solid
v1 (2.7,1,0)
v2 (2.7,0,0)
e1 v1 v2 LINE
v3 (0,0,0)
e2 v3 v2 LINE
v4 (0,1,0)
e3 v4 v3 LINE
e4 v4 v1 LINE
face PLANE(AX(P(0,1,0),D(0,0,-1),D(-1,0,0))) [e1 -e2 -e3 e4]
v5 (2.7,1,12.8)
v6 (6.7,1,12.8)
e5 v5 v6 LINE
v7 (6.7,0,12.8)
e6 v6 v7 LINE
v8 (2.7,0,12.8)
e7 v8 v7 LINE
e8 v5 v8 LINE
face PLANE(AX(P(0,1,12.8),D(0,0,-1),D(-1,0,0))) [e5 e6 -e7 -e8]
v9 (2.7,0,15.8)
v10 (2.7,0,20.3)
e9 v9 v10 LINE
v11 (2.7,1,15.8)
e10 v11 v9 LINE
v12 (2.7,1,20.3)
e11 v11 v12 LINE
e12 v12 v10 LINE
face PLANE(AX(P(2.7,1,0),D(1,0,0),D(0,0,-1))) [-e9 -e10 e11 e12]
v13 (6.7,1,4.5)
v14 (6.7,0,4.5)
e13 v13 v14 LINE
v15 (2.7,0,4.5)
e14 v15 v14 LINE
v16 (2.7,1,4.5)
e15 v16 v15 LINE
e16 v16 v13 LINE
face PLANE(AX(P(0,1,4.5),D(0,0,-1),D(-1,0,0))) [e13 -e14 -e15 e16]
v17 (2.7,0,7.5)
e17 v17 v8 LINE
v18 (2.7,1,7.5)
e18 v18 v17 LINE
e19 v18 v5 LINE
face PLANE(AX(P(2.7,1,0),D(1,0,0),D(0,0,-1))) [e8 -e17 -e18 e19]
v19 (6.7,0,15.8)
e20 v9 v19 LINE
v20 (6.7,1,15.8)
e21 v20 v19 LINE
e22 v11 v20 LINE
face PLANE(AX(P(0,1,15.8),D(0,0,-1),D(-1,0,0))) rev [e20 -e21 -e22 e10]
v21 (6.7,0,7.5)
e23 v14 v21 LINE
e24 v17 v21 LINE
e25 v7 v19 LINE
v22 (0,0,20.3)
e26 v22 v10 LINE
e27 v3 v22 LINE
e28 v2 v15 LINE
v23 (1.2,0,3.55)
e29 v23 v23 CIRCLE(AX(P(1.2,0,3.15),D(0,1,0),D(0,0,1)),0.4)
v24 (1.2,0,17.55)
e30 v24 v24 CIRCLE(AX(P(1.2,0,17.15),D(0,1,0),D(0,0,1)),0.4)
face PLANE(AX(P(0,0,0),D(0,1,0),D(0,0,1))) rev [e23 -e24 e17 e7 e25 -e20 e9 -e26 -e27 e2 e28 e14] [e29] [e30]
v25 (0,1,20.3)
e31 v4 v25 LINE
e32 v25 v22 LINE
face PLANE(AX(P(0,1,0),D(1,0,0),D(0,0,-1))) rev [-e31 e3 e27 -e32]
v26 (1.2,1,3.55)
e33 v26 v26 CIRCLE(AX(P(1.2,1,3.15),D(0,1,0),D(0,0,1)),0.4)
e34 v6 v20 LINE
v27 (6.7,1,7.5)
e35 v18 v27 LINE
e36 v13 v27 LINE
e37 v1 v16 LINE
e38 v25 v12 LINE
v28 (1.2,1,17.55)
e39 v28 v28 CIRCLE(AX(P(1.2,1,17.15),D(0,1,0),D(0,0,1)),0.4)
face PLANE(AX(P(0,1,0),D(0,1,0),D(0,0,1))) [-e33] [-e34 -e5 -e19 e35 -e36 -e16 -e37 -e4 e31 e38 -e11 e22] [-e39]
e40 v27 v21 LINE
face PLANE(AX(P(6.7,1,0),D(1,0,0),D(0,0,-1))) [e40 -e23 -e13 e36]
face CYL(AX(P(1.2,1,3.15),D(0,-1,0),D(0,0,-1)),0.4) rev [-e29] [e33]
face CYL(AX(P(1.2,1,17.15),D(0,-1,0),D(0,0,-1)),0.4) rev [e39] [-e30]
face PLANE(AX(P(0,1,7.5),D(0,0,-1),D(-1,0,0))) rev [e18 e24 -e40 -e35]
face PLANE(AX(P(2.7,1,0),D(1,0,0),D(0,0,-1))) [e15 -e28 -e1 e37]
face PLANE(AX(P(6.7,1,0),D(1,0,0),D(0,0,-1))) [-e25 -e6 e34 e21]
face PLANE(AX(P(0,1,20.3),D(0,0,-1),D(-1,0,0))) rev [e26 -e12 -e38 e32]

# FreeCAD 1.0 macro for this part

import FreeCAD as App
import Part
import Sketcher
from FreeCAD import Vector
Q = App.Units.Quantity

doc = App.newDocument("Part")
body = doc.addObject("PartDesign::Body", "Body")

sketch1 = body.newObject("Sketcher::SketchObject", "Sketch")
sketch1.AttachmentSupport = (doc.getObject("XZ_Plane"), [""])
sketch1.MapMode = "FlatFace"
sketch1.addGeometry(Part.LineSegment(Vector(0, 0, 0), Vector(0, 20.3, 0)), False)
sketch1.addGeometry(Part.LineSegment(Vector(0, 20.3, 0), Vector(2.7, 20.3, 0)), False)
sketch1.addGeometry(Part.LineSegment(Vector(2.7, 20.3, 0), Vector(2.7, 15.8, 0)), False)
sketch1.addGeometry(Part.LineSegment(Vector(2.7, 15.8, 0), Vector(6.7, 15.8, 0)), False)
sketch1.addGeometry(Part.LineSegment(Vector(6.7, 15.8, 0), Vector(6.7, 12.8, 0)), False)
sketch1.addGeometry(Part.LineSegment(Vector(6.7, 12.8, 0), Vector(2.7, 12.8, 0)), False)
sketch1.addGeometry(Part.LineSegment(Vector(2.7, 12.8, 0), Vector(2.7, 7.5, 0)), False)
sketch1.addGeometry(Part.LineSegment(Vector(2.7, 7.5, 0), Vector(6.7, 7.5, 0)), False)
sketch1.addGeometry(Part.LineSegment(Vector(6.7, 7.5, 0), Vector(6.7, 4.5, 0)), False)
sketch1.addGeometry(Part.LineSegment(Vector(6.7, 4.5, 0), Vector(2.7, 4.5, 0)), False)
sketch1.addGeometry(Part.LineSegment(Vector(2.7, 4.5, 0), Vector(2.7, 0, 0)), False)
sketch1.addGeometry(Part.LineSegment(Vector(2.7, 0, 0), Vector(0, 0, 0)), False)
sketch1.addGeometry(Part.Circle(Vector(1.2, 17.15, 0), Vector(0, 0, 1), 0.4), False)
sketch1.addGeometry(Part.Circle(Vector(1.2, 3.15, 0), Vector(0, 0, 1), 0.4), False)
sketch1.addConstraint(Sketcher.Constraint("Coincident", 0, 2, 1, 1))
sketch1.addConstraint(Sketcher.Constraint("Coincident", 1, 2, 2, 1))
sketch1.addConstraint(Sketcher.Constraint("Coincident", 2, 2, 3, 1))
sketch1.addConstraint(Sketcher.Constraint("Coincident", 3, 2, 4, 1))
sketch1.addConstraint(Sketcher.Constraint("Coincident", 4, 2, 5, 1))
sketch1.addConstraint(Sketcher.Constraint("Coincident", 5, 2, 6, 1))
sketch1.addConstraint(Sketcher.Constraint("Coincident", 6, 2, 7, 1))
sketch1.addConstraint(Sketcher.Constraint("Coincident", 7, 2, 8, 1))
sketch1.addConstraint(Sketcher.Constraint("Coincident", 8, 2, 9, 1))
sketch1.addConstraint(Sketcher.Constraint("Coincident", 9, 2, 10, 1))
sketch1.addConstraint(Sketcher.Constraint("Coincident", 10, 2, 11, 1))
sketch1.addConstraint(Sketcher.Constraint("Coincident", 11, 2, 0, 1))
sketch1.addConstraint(Sketcher.Constraint("Vertical", 0))
sketch1.addConstraint(Sketcher.Constraint("Horizontal", 1))
sketch1.addConstraint(Sketcher.Constraint("Vertical", 2))
sketch1.addConstraint(Sketcher.Constraint("Horizontal", 3))
sketch1.addConstraint(Sketcher.Constraint("Vertical", 4))
sketch1.addConstraint(Sketcher.Constraint("Horizontal", 5))
sketch1.addConstraint(Sketcher.Constraint("Vertical", 6))
sketch1.addConstraint(Sketcher.Constraint("Horizontal", 7))
sketch1.addConstraint(Sketcher.Constraint("Vertical", 8))
sketch1.addConstraint(Sketcher.Constraint("Horizontal", 9))
sketch1.addConstraint(Sketcher.Constraint("Vertical", 10))
sketch1.addConstraint(Sketcher.Constraint("Horizontal", 11))
sketch1.addConstraint(Sketcher.Constraint("Coincident", 11, 2, -1, 1))
sketch1.addConstraint(Sketcher.Constraint("Equal", 12, 13))
sketch1.addConstraint(Sketcher.Constraint("Vertical", 12, 3, 13, 3))
sketch1.addConstraint(Sketcher.Constraint("Vertical", 2, 2, 5, 2))
sketch1.addConstraint(Sketcher.Constraint("Vertical", 4, 2, 7, 2))
sketch1.addConstraint(Sketcher.Constraint("Vertical", 6, 2, 9, 2))
sketch1.addConstraint(Sketcher.Constraint("Equal", 4, 8))
sketch1.addConstraint(Sketcher.Constraint("Equal", 2, 10))
sketch1.addConstraint(Sketcher.Constraint("Diameter", 12, Q("0.8 mm")))
sketch1.addConstraint(Sketcher.Constraint("DistanceX", 3, 1, 3, 2, Q("4 mm")))
sketch1.addConstraint(Sketcher.Constraint("DistanceY", 4, 2, 4, 1, Q("3 mm")))
sketch1.addConstraint(Sketcher.Constraint("DistanceX", 1, 1, 1, 2, Q("2.7 mm")))
sketch1.addConstraint(Sketcher.Constraint("DistanceY", 0, 1, 0, 2, Q("20.3 mm")))
sketch1.addConstraint(Sketcher.Constraint("DistanceY", 2, 2, 2, 1, Q("4.5 mm")))
sketch1.addConstraint(Sketcher.Constraint("DistanceY", 13, 3, 12, 3, Q("14 mm")))
sketch1.addConstraint(Sketcher.Constraint("DistanceX", -1, 1, 12, 3, Q("1.2 mm")))
sketch1.addConstraint(Sketcher.Constraint("DistanceY", -1, 1, 12, 3, Q("17.15 mm")))
pad1 = body.newObject("PartDesign::Pad", "Pad")
pad1.Profile = sketch1
pad1.Length = 1
pad1.Reversed = True

doc.recompute()
